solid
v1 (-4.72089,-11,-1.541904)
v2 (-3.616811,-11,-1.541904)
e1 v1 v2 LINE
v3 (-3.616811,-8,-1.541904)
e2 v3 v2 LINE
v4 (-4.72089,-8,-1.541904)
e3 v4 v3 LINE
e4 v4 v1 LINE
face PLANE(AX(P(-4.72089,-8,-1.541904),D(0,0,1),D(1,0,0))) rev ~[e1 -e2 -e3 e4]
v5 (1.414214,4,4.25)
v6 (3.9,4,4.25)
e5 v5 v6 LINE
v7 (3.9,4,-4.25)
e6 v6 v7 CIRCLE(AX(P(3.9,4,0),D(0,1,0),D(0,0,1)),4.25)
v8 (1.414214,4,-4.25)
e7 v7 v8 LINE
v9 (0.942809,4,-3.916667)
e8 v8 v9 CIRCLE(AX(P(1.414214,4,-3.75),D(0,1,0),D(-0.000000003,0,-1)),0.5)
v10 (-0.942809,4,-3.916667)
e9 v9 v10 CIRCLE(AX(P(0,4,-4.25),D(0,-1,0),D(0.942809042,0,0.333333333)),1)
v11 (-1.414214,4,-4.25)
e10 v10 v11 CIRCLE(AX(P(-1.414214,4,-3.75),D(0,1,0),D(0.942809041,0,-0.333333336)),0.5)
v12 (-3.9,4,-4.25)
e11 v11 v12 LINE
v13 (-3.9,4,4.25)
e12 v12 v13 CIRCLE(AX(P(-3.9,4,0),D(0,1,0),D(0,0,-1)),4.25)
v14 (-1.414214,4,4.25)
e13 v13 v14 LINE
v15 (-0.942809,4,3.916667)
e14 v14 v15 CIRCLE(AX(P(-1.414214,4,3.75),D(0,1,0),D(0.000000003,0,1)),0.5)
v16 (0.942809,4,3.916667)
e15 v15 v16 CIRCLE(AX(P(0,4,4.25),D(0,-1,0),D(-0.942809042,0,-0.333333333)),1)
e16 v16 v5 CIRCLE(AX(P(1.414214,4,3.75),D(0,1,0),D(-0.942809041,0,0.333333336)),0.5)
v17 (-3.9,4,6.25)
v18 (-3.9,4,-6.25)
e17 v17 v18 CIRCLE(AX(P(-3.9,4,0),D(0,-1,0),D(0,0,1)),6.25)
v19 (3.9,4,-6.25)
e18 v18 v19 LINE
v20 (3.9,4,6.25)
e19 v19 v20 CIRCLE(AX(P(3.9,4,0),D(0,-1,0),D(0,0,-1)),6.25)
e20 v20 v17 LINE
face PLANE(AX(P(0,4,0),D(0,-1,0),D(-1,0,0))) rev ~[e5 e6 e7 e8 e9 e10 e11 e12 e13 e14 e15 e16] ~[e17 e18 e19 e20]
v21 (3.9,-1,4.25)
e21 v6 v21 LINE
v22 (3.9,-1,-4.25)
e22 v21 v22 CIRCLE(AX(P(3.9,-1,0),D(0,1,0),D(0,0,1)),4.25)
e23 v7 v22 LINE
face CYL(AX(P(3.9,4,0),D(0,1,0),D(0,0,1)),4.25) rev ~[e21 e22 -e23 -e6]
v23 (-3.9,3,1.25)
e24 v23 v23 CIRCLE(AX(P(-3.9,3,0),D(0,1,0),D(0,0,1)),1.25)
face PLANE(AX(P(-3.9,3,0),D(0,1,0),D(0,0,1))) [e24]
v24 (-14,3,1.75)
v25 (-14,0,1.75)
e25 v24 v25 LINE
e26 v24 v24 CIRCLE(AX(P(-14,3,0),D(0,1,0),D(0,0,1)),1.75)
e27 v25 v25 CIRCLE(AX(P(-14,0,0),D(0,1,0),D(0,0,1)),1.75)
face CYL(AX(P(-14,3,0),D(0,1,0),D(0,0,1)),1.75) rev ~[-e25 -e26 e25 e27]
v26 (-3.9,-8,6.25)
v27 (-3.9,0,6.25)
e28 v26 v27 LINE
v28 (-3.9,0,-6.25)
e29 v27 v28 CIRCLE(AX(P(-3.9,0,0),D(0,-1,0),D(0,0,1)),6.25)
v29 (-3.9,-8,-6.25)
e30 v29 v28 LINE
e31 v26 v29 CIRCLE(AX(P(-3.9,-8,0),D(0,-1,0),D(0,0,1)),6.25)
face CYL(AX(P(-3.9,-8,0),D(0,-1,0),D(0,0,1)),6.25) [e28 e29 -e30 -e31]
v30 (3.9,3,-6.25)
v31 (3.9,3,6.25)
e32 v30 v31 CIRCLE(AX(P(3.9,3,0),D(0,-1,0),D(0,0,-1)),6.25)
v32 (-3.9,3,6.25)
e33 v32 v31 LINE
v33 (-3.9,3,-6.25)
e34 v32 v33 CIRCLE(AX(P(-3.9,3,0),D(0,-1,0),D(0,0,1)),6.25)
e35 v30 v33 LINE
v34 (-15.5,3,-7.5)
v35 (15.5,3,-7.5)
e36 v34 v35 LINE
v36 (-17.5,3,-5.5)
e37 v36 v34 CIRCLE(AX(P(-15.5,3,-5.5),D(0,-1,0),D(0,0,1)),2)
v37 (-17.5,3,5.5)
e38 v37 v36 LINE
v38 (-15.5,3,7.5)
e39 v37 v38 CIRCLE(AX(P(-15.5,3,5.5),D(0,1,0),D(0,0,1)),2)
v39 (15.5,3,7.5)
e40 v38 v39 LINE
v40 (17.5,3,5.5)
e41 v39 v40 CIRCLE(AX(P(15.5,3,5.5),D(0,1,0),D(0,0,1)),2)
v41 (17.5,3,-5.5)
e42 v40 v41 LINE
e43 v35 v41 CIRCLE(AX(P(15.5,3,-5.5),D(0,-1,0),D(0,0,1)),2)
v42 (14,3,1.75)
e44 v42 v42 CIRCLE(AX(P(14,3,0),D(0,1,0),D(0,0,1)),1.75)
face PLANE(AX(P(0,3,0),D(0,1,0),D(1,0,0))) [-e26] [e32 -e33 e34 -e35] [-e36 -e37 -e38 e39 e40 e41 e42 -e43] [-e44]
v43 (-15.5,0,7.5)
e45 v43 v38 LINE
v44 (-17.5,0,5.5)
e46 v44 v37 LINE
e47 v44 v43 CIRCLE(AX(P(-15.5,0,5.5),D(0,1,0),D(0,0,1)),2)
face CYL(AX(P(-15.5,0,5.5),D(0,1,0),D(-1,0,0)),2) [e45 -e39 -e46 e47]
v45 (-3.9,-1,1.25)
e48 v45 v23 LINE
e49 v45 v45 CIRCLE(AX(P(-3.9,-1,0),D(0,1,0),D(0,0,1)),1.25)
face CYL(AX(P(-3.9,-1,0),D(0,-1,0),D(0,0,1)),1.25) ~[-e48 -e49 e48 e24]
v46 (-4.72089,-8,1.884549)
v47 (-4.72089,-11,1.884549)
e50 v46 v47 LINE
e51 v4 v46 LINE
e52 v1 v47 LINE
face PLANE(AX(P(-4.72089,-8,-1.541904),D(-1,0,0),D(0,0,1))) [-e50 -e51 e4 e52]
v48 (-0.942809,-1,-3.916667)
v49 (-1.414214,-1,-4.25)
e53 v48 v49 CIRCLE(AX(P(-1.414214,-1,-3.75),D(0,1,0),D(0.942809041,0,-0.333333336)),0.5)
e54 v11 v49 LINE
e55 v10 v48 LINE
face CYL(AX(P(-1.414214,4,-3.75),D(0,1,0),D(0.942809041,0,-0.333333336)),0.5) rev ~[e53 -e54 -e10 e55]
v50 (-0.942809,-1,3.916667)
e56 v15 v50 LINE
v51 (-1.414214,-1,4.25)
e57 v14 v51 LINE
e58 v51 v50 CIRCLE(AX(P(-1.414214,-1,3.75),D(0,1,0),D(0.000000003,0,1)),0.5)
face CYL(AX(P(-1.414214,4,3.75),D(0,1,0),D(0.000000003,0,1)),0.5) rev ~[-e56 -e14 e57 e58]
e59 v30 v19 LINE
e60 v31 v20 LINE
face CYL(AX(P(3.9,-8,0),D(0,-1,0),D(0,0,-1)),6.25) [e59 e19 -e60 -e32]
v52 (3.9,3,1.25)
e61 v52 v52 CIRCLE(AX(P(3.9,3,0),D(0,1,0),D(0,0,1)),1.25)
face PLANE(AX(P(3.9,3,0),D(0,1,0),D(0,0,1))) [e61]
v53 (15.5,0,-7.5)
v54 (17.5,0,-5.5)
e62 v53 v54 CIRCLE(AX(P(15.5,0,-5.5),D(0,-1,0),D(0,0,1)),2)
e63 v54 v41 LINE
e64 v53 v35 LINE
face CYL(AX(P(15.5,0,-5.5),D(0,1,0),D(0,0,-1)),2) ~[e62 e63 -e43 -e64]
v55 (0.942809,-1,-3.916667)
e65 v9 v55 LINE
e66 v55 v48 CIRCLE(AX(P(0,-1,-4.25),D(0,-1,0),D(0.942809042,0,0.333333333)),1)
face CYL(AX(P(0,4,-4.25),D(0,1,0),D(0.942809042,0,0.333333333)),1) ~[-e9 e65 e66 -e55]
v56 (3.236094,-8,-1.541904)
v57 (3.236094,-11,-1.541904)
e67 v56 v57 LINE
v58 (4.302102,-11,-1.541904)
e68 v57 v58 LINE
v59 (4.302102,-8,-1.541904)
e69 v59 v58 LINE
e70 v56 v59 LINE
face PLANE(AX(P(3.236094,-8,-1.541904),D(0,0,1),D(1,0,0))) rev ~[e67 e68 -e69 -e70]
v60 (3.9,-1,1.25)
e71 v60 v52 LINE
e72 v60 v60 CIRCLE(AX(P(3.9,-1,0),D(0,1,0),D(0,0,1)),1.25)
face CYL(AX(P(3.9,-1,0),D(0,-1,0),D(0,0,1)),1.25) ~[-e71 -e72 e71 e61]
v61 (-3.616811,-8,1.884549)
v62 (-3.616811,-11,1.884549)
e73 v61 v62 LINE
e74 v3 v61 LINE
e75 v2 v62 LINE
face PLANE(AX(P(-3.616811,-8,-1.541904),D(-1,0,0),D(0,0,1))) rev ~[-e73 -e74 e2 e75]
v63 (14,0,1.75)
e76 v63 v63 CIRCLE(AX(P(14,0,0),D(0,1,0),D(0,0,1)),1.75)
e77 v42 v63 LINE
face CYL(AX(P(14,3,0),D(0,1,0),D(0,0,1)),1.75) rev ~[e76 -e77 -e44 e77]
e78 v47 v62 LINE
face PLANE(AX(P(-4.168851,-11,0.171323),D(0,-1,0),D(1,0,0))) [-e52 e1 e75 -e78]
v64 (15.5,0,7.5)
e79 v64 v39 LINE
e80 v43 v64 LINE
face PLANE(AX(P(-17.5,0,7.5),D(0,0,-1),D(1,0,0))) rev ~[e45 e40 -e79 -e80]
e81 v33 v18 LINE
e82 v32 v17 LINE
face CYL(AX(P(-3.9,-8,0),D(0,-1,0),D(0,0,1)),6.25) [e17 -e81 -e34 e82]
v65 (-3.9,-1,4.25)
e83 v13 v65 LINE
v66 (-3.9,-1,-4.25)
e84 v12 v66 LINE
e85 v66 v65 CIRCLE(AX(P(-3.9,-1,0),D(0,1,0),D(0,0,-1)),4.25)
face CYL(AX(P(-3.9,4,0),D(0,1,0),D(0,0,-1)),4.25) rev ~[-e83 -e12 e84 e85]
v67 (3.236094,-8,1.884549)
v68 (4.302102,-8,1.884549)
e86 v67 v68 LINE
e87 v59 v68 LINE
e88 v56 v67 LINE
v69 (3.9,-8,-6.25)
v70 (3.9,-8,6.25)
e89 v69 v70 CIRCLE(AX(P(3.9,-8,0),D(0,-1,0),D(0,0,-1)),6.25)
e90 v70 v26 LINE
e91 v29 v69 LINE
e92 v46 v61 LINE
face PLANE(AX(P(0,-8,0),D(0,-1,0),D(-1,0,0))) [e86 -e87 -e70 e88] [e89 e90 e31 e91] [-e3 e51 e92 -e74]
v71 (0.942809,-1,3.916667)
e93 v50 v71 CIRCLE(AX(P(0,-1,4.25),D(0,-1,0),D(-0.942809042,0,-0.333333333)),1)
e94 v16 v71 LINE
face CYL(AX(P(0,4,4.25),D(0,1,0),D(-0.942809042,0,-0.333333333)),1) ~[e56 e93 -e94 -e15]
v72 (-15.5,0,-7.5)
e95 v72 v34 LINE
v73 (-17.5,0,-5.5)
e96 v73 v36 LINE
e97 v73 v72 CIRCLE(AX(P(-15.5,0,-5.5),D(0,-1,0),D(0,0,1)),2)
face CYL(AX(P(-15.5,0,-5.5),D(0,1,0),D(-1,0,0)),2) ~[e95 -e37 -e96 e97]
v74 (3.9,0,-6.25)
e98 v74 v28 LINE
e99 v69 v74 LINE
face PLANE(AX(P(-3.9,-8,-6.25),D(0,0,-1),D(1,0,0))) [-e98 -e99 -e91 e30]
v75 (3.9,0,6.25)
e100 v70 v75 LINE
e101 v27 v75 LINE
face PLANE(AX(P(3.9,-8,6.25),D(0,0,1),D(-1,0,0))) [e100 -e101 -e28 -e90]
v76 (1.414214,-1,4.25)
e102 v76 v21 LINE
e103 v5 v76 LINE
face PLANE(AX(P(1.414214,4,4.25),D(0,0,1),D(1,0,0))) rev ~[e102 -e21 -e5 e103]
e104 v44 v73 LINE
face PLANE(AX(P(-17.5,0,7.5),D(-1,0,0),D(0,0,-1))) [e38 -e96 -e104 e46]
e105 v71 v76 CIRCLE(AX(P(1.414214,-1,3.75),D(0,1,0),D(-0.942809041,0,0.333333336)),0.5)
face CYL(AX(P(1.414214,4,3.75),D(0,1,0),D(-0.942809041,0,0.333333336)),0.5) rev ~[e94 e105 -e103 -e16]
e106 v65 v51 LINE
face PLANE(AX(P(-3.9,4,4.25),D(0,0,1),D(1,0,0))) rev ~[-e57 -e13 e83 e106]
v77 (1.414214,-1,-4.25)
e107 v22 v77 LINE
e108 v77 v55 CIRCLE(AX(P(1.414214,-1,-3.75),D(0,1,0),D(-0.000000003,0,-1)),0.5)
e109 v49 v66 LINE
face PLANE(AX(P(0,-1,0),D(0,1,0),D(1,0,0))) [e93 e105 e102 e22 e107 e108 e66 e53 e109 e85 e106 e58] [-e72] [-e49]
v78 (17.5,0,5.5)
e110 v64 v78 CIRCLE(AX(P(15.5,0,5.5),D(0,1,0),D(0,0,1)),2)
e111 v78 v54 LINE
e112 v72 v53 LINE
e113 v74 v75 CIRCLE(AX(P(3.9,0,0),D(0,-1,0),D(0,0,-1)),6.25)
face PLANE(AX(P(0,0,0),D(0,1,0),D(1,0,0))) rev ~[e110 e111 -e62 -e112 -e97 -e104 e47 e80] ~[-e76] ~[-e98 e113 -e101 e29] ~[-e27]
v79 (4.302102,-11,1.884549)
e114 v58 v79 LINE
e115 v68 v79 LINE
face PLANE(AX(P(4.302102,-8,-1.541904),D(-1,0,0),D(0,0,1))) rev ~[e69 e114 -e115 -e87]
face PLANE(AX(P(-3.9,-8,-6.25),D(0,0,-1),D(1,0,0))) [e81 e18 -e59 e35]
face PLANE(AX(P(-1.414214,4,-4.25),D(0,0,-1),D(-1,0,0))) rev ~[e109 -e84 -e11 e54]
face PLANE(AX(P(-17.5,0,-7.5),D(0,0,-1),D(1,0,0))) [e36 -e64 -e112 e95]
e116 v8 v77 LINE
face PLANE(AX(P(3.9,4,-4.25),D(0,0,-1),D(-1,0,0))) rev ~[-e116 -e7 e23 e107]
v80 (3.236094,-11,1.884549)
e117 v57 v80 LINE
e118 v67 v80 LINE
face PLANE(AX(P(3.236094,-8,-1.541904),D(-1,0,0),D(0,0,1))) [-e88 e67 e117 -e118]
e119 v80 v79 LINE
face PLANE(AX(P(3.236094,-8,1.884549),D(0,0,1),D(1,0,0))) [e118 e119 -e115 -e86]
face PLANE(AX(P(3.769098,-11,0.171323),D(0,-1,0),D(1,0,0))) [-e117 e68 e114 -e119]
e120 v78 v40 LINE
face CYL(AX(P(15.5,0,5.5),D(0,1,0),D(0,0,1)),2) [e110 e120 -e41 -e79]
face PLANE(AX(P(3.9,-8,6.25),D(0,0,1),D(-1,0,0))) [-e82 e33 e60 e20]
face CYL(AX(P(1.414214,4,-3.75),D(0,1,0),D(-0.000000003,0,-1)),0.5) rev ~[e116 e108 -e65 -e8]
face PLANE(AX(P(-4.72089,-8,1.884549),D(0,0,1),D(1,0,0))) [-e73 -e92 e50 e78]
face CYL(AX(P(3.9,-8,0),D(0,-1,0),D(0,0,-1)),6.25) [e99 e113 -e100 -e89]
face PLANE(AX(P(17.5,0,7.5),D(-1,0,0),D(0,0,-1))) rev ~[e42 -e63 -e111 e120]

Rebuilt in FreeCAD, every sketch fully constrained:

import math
import FreeCAD as App
import Part
import Sketcher


def edges_at(feature, points):
    """Names of the edges that pass closest to the given points."""
    edges = feature.Shape.Edges
    near = lambda p: min(range(len(edges)), key=lambda i: edges[i].distToShape(Part.Vertex(*p))[0])
    return sorted({f"Edge{near(p) + 1}" for p in points})


def add_polygon(sketch, points):
    """Adds a closed chain of lines whose ends are joined by coincident constraints."""
    first, n = sketch.GeometryCount, len(points)
    for a, b in zip(points, points[1:] + points[:1]):
        sketch.addGeometry(Part.LineSegment(App.Vector(*a, 0), App.Vector(*b, 0)), False)
    for i in range(n):
        sketch.addConstraint(Sketcher.Constraint("Coincident", first + i, 2, first + (i + 1) % n, 1))

doc = App.newDocument("Part")
params = doc.addObject("Spreadsheet::Sheet", "Params")
for row, (alias, value) in enumerate([
    ("sketch1_width", "35 mm"),
    ("sketch1_height", "15 mm"),
    ("pad1_length", "3 mm"),
    ("sketch2_radius", "6.25 mm"),
    ("sketch2_width", "7.8 mm"),
    ("pad2_length", "1 mm"),
    ("pad2_length2", "11 mm"),
    ("sketch3_diameter", "3.5 mm"),
    ("sketch4_radius", "1 mm"),
    ("sketch4_radius2", "0.5 mm"),
    ("sketch4_radius3", "4.25 mm"),
    ("pocket2_length", "5 mm"),
    ("sketch5_diameter", "2.5 mm"),
    ("pad3_length", "4 mm"),
    ("fillet_radius", "2 mm"),
    ("pad4_length", "3 mm"),
], start=1):
    params.set(f"A{row}", alias)
    params.set(f"B{row}", "=" + value)
    params.setAlias(f"B{row}", alias)

body = doc.addObject("PartDesign::Body", "Body")

# Sketch on XZ plane
sketch1 = body.newObject("Sketcher::SketchObject", "Sketch")
sketch1.AttachmentSupport = (doc.getObject("XZ_Plane"), [""])
sketch1.MapMode = "FlatFace"
add_polygon(sketch1, [(-17.5, -7.5), (-17.5, 7.5), (17.5, 7.5), (17.5, -7.5)])  # lines 0-3
sketch1.addConstraint([
    Sketcher.Constraint("Vertical", 0),
    Sketcher.Constraint("Horizontal", 1),
    Sketcher.Constraint("Vertical", 2),
    Sketcher.Constraint("Horizontal", 3),
    Sketcher.Constraint("Symmetric", 0, 2, 2, 2, -1, 1),
    Sketcher.Constraint("DistanceX", 1, 1, 1, 2, 35.0),
    Sketcher.Constraint("DistanceY", 0, 1, 0, 2, 15.0),
])
sketch1.setExpression("Constraints[9]", "Params.sketch1_width")
sketch1.setExpression("Constraints[10]", "Params.sketch1_height")
pad1 = body.newObject("PartDesign::Pad", "Pad")
pad1.Profile = sketch1
pad1.setExpression("Length", "Params.pad1_length")
pad1.Reversed = True

# Sketch on XZ plane
sketch2 = body.newObject("Sketcher::SketchObject", "Sketch001")
sketch2.AttachmentSupport = (doc.getObject("XZ_Plane"), [""])
sketch2.MapMode = "FlatFace"
sketch2.AttachmentOffset = App.Placement(App.Vector(0, 0, -3), App.Rotation())
sketch2.addGeometry([
    Part.LineSegment(App.Vector(3.9, -6.25, 0), App.Vector(-3.9, -6.25, 0)),
    Part.ArcOfCircle(Part.Circle(App.Vector(-3.9, 0, 0), App.Vector(0, 0, 1), 6.25), math.radians(90), math.radians(270)),
    Part.LineSegment(App.Vector(-3.9, 6.25, 0), App.Vector(3.9, 6.25, 0)),
    Part.ArcOfCircle(Part.Circle(App.Vector(3.9, 0, 0), App.Vector(0, 0, 1), 6.25), math.radians(-90), math.radians(90)),
], False)
sketch2.addConstraint([
    Sketcher.Constraint("Tangent", 0, 2, 1, 2),
    Sketcher.Constraint("Tangent", 1, 1, 2, 1),
    Sketcher.Constraint("Tangent", 2, 2, 3, 2),
    Sketcher.Constraint("Tangent", 3, 1, 0, 1),
    Sketcher.Constraint("Horizontal", 0),
    Sketcher.Constraint("Horizontal", 2),
    Sketcher.Constraint("Symmetric", 1, 3, 3, 3, -1, 1),
    Sketcher.Constraint("Radius", 1, 6.25),
    Sketcher.Constraint("DistanceX", 0, 2, 0, 1, 7.8),
])
sketch2.setExpression("Constraints[7]", "Params.sketch2_radius")
sketch2.setExpression("Constraints[8]", "Params.sketch2_width")
pad2 = body.newObject("PartDesign::Pad", "Pad001")
pad2.Profile = sketch2
pad2.Type = "TwoLengths"
pad2.setExpression("Length", "Params.pad2_length")
pad2.setExpression("Length2", "Params.pad2_length2")
pad2.Reversed = True

# Sketch on XZ plane
sketch3 = body.newObject("Sketcher::SketchObject", "Sketch002")
sketch3.AttachmentSupport = (doc.getObject("XZ_Plane"), [""])
sketch3.MapMode = "FlatFace"
sketch3.AttachmentOffset = App.Placement(App.Vector(0, 0, -3), App.Rotation())
sketch3.addGeometry([
    Part.Circle(App.Vector(-14, 0, 0), App.Vector(0, 0, 1), 1.75),
    Part.Circle(App.Vector(14, 0, 0), App.Vector(0, 0, 1), 1.75),
], False)
sketch3.addConstraint([
    Sketcher.Constraint("Equal", 0, 1),
    Sketcher.Constraint("Symmetric", 0, 3, 1, 3, -1, 1),
    Sketcher.Constraint("PointOnObject", 0, 3, -1),
    Sketcher.Constraint("Diameter", 0, 3.5),
    Sketcher.Constraint("DistanceX", 0, 3, -1, 1, 14.0),
])
sketch3.setExpression("Constraints[3]", "Params.sketch3_diameter")
pocket1 = body.newObject("PartDesign::Pocket", "Pocket")
pocket1.Profile = sketch3
pocket1.Type = "ThroughAll"
pocket1.Reversed = True

# Sketch on XZ plane
sketch4 = body.newObject("Sketcher::SketchObject", "Sketch003")
sketch4.AttachmentSupport = (doc.getObject("XZ_Plane"), [""])
sketch4.MapMode = "FlatFace"
sketch4.AttachmentOffset = App.Placement(App.Vector(0, 0, -4), App.Rotation())
sketch4.addGeometry([
    Part.LineSegment(App.Vector(-1.414214, -4.25, 0), App.Vector(-3.9, -4.25, 0)),  # 0
    Part.ArcOfCircle(Part.Circle(App.Vector(-3.9, 0, 0), App.Vector(0, 0, 1), 4.25), math.radians(90), math.radians(270)),  # 1
    Part.LineSegment(App.Vector(-3.9, 4.25, 0), App.Vector(-1.414214, 4.25, 0)),  # 2
    Part.ArcOfCircle(Part.Circle(App.Vector(-1.414214, 3.75, 0), App.Vector(0, 0, 1), 0.5), math.radians(19.471221), math.radians(90)),  # 3
    Part.ArcOfCircle(Part.Circle(App.Vector(0, 4.25, 0), App.Vector(0, 0, 1), 1), math.radians(-160.528779), math.radians(-19.471221)),  # 4
    Part.ArcOfCircle(Part.Circle(App.Vector(1.414214, 3.75, 0), App.Vector(0, 0, 1), 0.5), math.radians(90), math.radians(160.528779)),  # 5
    Part.LineSegment(App.Vector(1.414214, 4.25, 0), App.Vector(3.9, 4.25, 0)),  # 6
    Part.ArcOfCircle(Part.Circle(App.Vector(3.9, 0, 0), App.Vector(0, 0, 1), 4.25), math.radians(-90), math.radians(90)),  # 7
    Part.LineSegment(App.Vector(3.9, -4.25, 0), App.Vector(1.414214, -4.25, 0)),  # 8
    Part.ArcOfCircle(Part.Circle(App.Vector(1.414214, -3.75, 0), App.Vector(0, 0, 1), 0.5), math.radians(-160.528779), math.radians(-90)),  # 9
    Part.ArcOfCircle(Part.Circle(App.Vector(0, -4.25, 0), App.Vector(0, 0, 1), 1), math.radians(19.471221), math.radians(160.528779)),  # 10
    Part.ArcOfCircle(Part.Circle(App.Vector(-1.414214, -3.75, 0), App.Vector(0, 0, 1), 0.5), math.radians(-90), math.radians(-19.471221)),  # 11
], False)
sketch4.addConstraint([
    Sketcher.Constraint("Tangent", 0, 2, 1, 2),
    Sketcher.Constraint("Tangent", 1, 1, 2, 1),
    Sketcher.Constraint("Tangent", 2, 2, 3, 2),
    Sketcher.Constraint("Tangent", 3, 1, 4, 1),
    Sketcher.Constraint("Tangent", 4, 2, 5, 2),
    Sketcher.Constraint("Tangent", 5, 1, 6, 1),
    Sketcher.Constraint("Tangent", 6, 2, 7, 2),
    Sketcher.Constraint("Tangent", 7, 1, 8, 1),
    Sketcher.Constraint("Tangent", 8, 2, 9, 2),
    Sketcher.Constraint("Tangent", 9, 1, 10, 1),
    Sketcher.Constraint("Tangent", 10, 2, 11, 2),
    Sketcher.Constraint("Tangent", 11, 1, 0, 1),
    Sketcher.Constraint("Horizontal", 0),
    Sketcher.Constraint("Horizontal", 2),
    Sketcher.Constraint("Horizontal", 6),
    Sketcher.Constraint("Horizontal", 8),
    Sketcher.Constraint("Equal", 3, 5),
    Sketcher.Constraint("Equal", 1, 7),
    Sketcher.Constraint("Equal", 5, 9),
    Sketcher.Constraint("Equal", 4, 10),
    Sketcher.Constraint("Equal", 9, 11),
    Sketcher.Constraint("Symmetric", 1, 3, 7, 3, -1, 1),
    Sketcher.Constraint("Symmetric", 4, 3, 10, 3, -1, 1),
    Sketcher.Constraint("Symmetric", 3, 3, 5, 3, -2),
    Sketcher.Constraint("Horizontal", 10, 3, 0, 2),
    Sketcher.Constraint("Radius", 4, 1.0),
    Sketcher.Constraint("Radius", 3, 0.5),
    Sketcher.Constraint("Radius", 1, 4.25),
    Sketcher.Constraint("DistanceX", 1, 3, -1, 1, 3.9),
])
sketch4.setExpression("Constraints[25]", "Params.sketch4_radius")
sketch4.setExpression("Constraints[26]", "Params.sketch4_radius2")
sketch4.setExpression("Constraints[27]", "Params.sketch4_radius3")
pocket2 = body.newObject("PartDesign::Pocket", "Pocket001")
pocket2.Profile = sketch4
pocket2.setExpression("Length", "Params.pocket2_length")
pocket2.Reversed = True

# Sketch on XZ plane
sketch5 = body.newObject("Sketcher::SketchObject", "Sketch004")
sketch5.AttachmentSupport = (doc.getObject("XZ_Plane"), [""])
sketch5.MapMode = "FlatFace"
sketch5.AttachmentOffset = App.Placement(App.Vector(0, 0, 1), App.Rotation())
sketch5.addGeometry([
    Part.Circle(App.Vector(-3.9, 0, 0), App.Vector(0, 0, 1), 1.25),
    Part.Circle(App.Vector(3.9, 0, 0), App.Vector(0, 0, 1), 1.25),
], False)
sketch5.addConstraint([
    Sketcher.Constraint("Equal", 0, 1),
    Sketcher.Constraint("Symmetric", 0, 3, 1, 3, -1, 1),
    Sketcher.Constraint("PointOnObject", 0, 3, -1),
    Sketcher.Constraint("Diameter", 0, 2.5),
    Sketcher.Constraint("DistanceX", 0, 3, -1, 1, 3.9),
])
sketch5.setExpression("Constraints[3]", "Params.sketch5_diameter")
pad3 = body.newObject("PartDesign::Pad", "Pad002")
pad3.Profile = sketch5
pad3.setExpression("Length", "Params.pad3_length")
pad3.Reversed = True
doc.recompute()

fillet = body.newObject("PartDesign::Fillet", "Fillet")
fillet.Base = (pad3, edges_at(pad3, [
    (17.5, 1.5, 7.5),
    (-17.5, 1.5, 7.5),
    (-17.5, 1.5, -7.5),
    (17.5, 1.5, -7.5),
]))
fillet.setExpression("Radius", "Params.fillet_radius")

# Sketch on XZ plane
sketch6 = body.newObject("Sketcher::SketchObject", "Sketch005")
sketch6.AttachmentSupport = (doc.getObject("XZ_Plane"), [""])
sketch6.MapMode = "FlatFace"
sketch6.AttachmentOffset = App.Placement(App.Vector(0, 0, 8), App.Rotation())
add_polygon(sketch6, [(-4.72089, 1.884549), (-4.72089, -1.541904), (-3.616811, -1.541904), (-3.616811, 1.884549)])  # lines 0-3
add_polygon(sketch6, [(3.236094, 1.884549), (3.236094, -1.541904), (4.302102, -1.541904), (4.302102, 1.884549)])  # lines 4-7
sketch6.addConstraint([
    Sketcher.Constraint("Vertical", 0),
    Sketcher.Constraint("Horizontal", 1),
    Sketcher.Constraint("Vertical", 2),
    Sketcher.Constraint("Horizontal", 3),
    Sketcher.Constraint("Vertical", 4),
    Sketcher.Constraint("Horizontal", 5),
    Sketcher.Constraint("Vertical", 6),
    Sketcher.Constraint("Horizontal", 7),
    Sketcher.Constraint("Horizontal", 1, 2, 4, 2),
    Sketcher.Constraint("Horizontal", 3, 2, 6, 2),
    Sketcher.Constraint("DistanceX", 1, 1, 1, 2, 1.104079),
    Sketcher.Constraint("DistanceX", -1, 1, 5, 2, 4.302102),
    Sketcher.Constraint("DistanceX", 5, 1, 5, 2, 1.066007),
    Sketcher.Constraint("DistanceY", 0, 2, 0, 1, 3.426453),
    Sketcher.Constraint("DistanceX", 0, 2, -1, 1, 4.72089),
    Sketcher.Constraint("DistanceY", -1, 1, 2, 2, 1.884549),
])
pad4 = body.newObject("PartDesign::Pad", "Pad003")
pad4.Profile = sketch6
pad4.setExpression("Length", "Params.pad4_length")

doc.recompute()
